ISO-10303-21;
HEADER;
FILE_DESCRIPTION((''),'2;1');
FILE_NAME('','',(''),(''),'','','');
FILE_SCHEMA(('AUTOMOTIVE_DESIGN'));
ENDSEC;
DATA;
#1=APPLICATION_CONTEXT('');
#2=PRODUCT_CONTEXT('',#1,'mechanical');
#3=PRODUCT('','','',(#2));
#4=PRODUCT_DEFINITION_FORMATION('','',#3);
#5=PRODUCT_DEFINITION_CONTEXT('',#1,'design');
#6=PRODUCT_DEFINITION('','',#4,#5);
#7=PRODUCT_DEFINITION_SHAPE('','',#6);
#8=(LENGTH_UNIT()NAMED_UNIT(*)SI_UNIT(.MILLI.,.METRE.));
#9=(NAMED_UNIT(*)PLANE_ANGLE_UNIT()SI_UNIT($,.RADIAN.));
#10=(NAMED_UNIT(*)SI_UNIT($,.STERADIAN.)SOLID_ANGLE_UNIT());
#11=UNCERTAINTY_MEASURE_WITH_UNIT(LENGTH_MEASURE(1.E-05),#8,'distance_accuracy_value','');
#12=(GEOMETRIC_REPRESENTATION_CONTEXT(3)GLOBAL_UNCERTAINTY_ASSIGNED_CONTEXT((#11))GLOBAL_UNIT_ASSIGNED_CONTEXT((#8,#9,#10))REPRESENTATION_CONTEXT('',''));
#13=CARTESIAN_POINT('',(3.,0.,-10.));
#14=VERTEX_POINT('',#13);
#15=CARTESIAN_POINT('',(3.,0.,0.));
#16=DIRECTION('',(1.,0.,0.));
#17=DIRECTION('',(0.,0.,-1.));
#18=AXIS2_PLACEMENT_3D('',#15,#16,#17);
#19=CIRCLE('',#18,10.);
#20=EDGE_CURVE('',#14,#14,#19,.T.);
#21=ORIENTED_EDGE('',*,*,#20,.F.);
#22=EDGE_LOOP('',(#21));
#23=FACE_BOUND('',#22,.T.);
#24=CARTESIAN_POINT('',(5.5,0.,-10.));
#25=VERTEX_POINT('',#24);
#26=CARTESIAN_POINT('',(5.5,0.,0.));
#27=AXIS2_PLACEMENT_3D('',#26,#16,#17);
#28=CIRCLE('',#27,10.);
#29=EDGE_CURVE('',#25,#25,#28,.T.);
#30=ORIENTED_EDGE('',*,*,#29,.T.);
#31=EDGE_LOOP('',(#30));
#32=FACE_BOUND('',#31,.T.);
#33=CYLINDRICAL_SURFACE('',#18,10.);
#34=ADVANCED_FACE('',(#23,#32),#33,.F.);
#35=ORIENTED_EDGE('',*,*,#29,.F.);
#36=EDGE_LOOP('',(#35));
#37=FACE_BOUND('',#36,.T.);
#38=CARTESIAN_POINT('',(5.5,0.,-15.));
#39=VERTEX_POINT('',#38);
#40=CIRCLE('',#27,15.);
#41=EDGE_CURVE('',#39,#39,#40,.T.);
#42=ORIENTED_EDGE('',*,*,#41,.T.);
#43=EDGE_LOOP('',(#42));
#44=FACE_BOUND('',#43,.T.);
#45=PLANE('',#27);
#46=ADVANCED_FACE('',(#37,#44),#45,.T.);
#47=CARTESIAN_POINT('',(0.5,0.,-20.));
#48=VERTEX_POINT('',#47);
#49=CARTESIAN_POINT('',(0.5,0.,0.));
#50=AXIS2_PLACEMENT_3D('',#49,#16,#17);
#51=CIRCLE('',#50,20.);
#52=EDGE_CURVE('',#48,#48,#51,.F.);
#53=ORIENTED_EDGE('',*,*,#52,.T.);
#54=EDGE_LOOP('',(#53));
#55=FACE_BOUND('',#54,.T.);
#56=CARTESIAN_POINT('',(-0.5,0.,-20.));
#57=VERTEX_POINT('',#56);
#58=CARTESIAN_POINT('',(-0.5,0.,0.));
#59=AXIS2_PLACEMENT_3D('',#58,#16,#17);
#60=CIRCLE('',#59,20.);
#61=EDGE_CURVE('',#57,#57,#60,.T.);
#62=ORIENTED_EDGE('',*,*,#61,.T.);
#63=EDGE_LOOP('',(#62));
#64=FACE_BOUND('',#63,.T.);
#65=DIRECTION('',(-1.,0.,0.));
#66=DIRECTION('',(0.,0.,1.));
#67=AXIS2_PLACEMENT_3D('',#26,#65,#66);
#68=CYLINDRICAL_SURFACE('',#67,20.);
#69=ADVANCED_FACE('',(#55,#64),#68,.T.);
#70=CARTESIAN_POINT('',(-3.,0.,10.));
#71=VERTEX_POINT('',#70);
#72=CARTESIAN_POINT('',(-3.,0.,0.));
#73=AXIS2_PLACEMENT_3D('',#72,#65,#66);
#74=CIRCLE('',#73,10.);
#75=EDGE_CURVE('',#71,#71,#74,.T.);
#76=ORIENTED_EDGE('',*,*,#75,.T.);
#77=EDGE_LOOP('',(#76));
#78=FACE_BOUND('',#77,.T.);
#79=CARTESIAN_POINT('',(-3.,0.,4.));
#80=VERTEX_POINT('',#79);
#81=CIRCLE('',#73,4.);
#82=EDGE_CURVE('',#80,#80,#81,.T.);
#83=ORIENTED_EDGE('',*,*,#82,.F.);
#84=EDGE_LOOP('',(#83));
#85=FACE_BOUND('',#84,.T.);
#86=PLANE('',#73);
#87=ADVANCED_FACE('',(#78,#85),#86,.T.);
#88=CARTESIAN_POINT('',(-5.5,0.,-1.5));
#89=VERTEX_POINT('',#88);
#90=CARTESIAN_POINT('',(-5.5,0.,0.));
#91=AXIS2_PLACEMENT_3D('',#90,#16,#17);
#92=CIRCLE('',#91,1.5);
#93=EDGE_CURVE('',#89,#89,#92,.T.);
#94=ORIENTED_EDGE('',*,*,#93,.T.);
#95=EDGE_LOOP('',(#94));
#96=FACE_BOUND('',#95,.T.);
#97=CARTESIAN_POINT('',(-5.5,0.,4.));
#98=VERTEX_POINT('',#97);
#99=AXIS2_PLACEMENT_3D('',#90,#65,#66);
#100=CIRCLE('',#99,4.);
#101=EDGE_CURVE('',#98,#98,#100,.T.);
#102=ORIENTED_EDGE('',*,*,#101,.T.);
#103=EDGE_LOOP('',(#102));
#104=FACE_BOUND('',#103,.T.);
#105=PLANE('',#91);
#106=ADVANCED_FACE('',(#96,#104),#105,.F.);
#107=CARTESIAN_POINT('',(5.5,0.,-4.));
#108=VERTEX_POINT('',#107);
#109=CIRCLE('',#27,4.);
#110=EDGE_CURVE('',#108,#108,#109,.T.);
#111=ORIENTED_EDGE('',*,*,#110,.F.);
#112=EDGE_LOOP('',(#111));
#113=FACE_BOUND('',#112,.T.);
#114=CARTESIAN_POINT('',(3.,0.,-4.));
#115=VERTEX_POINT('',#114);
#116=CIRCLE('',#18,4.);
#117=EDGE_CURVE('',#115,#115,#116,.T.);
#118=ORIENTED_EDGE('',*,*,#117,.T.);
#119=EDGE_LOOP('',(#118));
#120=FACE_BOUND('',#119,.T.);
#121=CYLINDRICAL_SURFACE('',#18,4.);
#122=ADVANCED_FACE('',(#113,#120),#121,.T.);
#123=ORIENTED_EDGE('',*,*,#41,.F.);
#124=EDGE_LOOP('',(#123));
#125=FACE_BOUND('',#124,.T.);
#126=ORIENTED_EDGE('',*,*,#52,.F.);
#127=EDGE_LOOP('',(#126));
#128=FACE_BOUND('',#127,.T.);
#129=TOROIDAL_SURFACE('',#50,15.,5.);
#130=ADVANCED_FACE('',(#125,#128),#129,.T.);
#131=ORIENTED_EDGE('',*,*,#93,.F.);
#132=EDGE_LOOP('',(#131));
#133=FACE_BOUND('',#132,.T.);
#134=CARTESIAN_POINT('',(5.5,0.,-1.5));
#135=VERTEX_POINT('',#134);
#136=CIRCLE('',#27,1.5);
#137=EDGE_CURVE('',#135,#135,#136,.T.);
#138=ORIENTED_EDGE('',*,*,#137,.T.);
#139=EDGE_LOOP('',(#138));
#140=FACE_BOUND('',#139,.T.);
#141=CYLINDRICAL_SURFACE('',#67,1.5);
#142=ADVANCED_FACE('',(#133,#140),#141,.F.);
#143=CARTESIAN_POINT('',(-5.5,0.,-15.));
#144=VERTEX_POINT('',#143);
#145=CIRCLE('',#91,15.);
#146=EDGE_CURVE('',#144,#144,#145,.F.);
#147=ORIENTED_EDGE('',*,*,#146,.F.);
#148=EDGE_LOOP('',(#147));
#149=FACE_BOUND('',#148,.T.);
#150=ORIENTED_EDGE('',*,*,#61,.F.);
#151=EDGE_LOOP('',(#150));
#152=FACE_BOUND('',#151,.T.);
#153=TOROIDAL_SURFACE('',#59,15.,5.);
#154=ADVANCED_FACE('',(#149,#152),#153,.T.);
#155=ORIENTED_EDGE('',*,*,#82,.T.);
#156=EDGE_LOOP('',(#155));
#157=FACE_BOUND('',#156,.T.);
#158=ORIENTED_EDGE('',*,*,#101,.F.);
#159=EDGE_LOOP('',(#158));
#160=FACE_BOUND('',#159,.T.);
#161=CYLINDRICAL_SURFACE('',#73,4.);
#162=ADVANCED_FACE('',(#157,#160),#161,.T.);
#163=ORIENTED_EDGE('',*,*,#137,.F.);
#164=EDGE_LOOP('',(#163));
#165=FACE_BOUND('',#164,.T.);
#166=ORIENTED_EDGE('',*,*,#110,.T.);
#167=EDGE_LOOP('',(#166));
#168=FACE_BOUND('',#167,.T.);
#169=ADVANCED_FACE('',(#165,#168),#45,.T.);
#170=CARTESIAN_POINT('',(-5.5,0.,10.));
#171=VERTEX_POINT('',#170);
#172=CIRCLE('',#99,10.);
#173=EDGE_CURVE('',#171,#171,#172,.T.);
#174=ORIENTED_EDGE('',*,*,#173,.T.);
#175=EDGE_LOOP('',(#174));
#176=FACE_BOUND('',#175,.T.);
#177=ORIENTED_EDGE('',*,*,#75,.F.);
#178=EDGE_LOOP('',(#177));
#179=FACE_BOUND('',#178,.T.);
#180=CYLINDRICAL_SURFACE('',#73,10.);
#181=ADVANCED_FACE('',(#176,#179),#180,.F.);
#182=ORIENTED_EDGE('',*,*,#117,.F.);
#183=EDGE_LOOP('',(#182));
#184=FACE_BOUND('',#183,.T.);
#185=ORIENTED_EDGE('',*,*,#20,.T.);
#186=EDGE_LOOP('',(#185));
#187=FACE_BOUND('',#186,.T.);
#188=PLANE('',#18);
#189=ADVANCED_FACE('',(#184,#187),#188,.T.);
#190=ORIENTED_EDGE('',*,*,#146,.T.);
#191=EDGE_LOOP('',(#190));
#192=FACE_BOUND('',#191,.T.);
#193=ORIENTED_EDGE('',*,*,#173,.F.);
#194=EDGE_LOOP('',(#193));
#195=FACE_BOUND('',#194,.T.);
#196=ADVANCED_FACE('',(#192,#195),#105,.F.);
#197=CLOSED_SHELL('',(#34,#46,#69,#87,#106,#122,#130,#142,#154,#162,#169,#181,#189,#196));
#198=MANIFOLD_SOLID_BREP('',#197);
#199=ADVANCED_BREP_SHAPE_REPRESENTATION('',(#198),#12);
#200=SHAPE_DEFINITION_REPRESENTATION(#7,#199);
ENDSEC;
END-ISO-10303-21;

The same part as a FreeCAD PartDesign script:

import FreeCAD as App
import Part
import Sketcher
from FreeCAD import Vector
Q = App.Units.Quantity


def edges_at(feature, points):
    """Names of the edges that pass closest to the given points."""
    edges = feature.Shape.Edges
    near = lambda p: min(range(len(edges)), key=lambda i: edges[i].distToShape(Part.Vertex(*p))[0])
    return sorted({f"Edge{near(p) + 1}" for p in points})

doc = App.newDocument("Part")
body = doc.addObject("PartDesign::Body", "Body")

# Sketch on YZ plane
sketch1 = doc.addObject("Sketcher::SketchObject", "Sketch")
body.addObject(sketch1)
sketch1.AttachmentSupport = (doc.YZ_Plane, [""])
sketch1.MapMode = "FlatFace"
sketch1.addGeometry(Part.Circle(Vector(0, 0, 0), Vector(0, 0, 1), 20), False)
sketch1.addGeometry(Part.Circle(Vector(0, 0, 0), Vector(0, 0, 1), 1.5), False)
sketch1.addConstraint(Sketcher.Constraint("Coincident", 0, 3, -1, 1))
sketch1.addConstraint(Sketcher.Constraint("Coincident", 1, 3, -1, 1))
sketch1.addConstraint(Sketcher.Constraint("Diameter", 0, Q("40 mm")))
sketch1.addConstraint(Sketcher.Constraint("Diameter", 1, Q("3 mm")))
pad1 = doc.addObject("PartDesign::Pad", "Pad")
body.addObject(pad1)
pad1.Profile = sketch1
pad1.Length = 11
pad1.Midplane = True
doc.recompute()

fillet = doc.addObject("PartDesign::Fillet", "Fillet")
body.addObject(fillet)
fillet.Base = (pad1, edges_at(pad1, [(-5.5, 0, 20), (5.5, 0, 20)]))
fillet.Radius = 5

# Sketch on YZ plane
sketch2 = doc.addObject("Sketcher::SketchObject", "Sketch001")
body.addObject(sketch2)
sketch2.AttachmentSupport = (doc.YZ_Plane, [""])
sketch2.MapMode = "FlatFace"
sketch2.AttachmentOffset = App.Placement(Vector(0, 0, 5.5), App.Rotation())
sketch2.addGeometry(Part.Circle(Vector(0, 0, 0), Vector(0, 0, 1), 10), False)
sketch2.addGeometry(Part.Circle(Vector(0, 0, 0), Vector(0, 0, 1), 4), False)
sketch2.addConstraint(Sketcher.Constraint("Coincident", 0, 3, -1, 1))
sketch2.addConstraint(Sketcher.Constraint("Coincident", 1, 3, -1, 1))
sketch2.addConstraint(Sketcher.Constraint("Diameter", 0, Q("20 mm")))
sketch2.addConstraint(Sketcher.Constraint("Diameter", 1, Q("8 mm")))
pocket1 = doc.addObject("PartDesign::Pocket", "Pocket")
body.addObject(pocket1)
pocket1.Profile = sketch2
pocket1.Length = 2.5

# Sketch on YZ plane
sketch3 = doc.addObject("Sketcher::SketchObject", "Sketch002")
body.addObject(sketch3)
sketch3.AttachmentSupport = (doc.YZ_Plane, [""])
sketch3.MapMode = "FlatFace"
sketch3.AttachmentOffset = App.Placement(Vector(0, 0, -3), App.Rotation())
sketch3.addGeometry(Part.Circle(Vector(0, 0, 0), Vector(0, 0, 1), 10), False)
sketch3.addGeometry(Part.Circle(Vector(0, 0, 0), Vector(0, 0, 1), 4), False)
sketch3.addConstraint(Sketcher.Constraint("Coincident", 0, 3, -1, 1))
sketch3.addConstraint(Sketcher.Constraint("Coincident", 1, 3, -1, 1))
sketch3.addConstraint(Sketcher.Constraint("Diameter", 0, Q("20 mm")))
sketch3.addConstraint(Sketcher.Constraint("Diameter", 1, Q("8 mm")))
pocket2 = doc.addObject("PartDesign::Pocket", "Pocket001")
body.addObject(pocket2)
pocket2.Profile = sketch3
pocket2.Length = 2.5

doc.recompute()
